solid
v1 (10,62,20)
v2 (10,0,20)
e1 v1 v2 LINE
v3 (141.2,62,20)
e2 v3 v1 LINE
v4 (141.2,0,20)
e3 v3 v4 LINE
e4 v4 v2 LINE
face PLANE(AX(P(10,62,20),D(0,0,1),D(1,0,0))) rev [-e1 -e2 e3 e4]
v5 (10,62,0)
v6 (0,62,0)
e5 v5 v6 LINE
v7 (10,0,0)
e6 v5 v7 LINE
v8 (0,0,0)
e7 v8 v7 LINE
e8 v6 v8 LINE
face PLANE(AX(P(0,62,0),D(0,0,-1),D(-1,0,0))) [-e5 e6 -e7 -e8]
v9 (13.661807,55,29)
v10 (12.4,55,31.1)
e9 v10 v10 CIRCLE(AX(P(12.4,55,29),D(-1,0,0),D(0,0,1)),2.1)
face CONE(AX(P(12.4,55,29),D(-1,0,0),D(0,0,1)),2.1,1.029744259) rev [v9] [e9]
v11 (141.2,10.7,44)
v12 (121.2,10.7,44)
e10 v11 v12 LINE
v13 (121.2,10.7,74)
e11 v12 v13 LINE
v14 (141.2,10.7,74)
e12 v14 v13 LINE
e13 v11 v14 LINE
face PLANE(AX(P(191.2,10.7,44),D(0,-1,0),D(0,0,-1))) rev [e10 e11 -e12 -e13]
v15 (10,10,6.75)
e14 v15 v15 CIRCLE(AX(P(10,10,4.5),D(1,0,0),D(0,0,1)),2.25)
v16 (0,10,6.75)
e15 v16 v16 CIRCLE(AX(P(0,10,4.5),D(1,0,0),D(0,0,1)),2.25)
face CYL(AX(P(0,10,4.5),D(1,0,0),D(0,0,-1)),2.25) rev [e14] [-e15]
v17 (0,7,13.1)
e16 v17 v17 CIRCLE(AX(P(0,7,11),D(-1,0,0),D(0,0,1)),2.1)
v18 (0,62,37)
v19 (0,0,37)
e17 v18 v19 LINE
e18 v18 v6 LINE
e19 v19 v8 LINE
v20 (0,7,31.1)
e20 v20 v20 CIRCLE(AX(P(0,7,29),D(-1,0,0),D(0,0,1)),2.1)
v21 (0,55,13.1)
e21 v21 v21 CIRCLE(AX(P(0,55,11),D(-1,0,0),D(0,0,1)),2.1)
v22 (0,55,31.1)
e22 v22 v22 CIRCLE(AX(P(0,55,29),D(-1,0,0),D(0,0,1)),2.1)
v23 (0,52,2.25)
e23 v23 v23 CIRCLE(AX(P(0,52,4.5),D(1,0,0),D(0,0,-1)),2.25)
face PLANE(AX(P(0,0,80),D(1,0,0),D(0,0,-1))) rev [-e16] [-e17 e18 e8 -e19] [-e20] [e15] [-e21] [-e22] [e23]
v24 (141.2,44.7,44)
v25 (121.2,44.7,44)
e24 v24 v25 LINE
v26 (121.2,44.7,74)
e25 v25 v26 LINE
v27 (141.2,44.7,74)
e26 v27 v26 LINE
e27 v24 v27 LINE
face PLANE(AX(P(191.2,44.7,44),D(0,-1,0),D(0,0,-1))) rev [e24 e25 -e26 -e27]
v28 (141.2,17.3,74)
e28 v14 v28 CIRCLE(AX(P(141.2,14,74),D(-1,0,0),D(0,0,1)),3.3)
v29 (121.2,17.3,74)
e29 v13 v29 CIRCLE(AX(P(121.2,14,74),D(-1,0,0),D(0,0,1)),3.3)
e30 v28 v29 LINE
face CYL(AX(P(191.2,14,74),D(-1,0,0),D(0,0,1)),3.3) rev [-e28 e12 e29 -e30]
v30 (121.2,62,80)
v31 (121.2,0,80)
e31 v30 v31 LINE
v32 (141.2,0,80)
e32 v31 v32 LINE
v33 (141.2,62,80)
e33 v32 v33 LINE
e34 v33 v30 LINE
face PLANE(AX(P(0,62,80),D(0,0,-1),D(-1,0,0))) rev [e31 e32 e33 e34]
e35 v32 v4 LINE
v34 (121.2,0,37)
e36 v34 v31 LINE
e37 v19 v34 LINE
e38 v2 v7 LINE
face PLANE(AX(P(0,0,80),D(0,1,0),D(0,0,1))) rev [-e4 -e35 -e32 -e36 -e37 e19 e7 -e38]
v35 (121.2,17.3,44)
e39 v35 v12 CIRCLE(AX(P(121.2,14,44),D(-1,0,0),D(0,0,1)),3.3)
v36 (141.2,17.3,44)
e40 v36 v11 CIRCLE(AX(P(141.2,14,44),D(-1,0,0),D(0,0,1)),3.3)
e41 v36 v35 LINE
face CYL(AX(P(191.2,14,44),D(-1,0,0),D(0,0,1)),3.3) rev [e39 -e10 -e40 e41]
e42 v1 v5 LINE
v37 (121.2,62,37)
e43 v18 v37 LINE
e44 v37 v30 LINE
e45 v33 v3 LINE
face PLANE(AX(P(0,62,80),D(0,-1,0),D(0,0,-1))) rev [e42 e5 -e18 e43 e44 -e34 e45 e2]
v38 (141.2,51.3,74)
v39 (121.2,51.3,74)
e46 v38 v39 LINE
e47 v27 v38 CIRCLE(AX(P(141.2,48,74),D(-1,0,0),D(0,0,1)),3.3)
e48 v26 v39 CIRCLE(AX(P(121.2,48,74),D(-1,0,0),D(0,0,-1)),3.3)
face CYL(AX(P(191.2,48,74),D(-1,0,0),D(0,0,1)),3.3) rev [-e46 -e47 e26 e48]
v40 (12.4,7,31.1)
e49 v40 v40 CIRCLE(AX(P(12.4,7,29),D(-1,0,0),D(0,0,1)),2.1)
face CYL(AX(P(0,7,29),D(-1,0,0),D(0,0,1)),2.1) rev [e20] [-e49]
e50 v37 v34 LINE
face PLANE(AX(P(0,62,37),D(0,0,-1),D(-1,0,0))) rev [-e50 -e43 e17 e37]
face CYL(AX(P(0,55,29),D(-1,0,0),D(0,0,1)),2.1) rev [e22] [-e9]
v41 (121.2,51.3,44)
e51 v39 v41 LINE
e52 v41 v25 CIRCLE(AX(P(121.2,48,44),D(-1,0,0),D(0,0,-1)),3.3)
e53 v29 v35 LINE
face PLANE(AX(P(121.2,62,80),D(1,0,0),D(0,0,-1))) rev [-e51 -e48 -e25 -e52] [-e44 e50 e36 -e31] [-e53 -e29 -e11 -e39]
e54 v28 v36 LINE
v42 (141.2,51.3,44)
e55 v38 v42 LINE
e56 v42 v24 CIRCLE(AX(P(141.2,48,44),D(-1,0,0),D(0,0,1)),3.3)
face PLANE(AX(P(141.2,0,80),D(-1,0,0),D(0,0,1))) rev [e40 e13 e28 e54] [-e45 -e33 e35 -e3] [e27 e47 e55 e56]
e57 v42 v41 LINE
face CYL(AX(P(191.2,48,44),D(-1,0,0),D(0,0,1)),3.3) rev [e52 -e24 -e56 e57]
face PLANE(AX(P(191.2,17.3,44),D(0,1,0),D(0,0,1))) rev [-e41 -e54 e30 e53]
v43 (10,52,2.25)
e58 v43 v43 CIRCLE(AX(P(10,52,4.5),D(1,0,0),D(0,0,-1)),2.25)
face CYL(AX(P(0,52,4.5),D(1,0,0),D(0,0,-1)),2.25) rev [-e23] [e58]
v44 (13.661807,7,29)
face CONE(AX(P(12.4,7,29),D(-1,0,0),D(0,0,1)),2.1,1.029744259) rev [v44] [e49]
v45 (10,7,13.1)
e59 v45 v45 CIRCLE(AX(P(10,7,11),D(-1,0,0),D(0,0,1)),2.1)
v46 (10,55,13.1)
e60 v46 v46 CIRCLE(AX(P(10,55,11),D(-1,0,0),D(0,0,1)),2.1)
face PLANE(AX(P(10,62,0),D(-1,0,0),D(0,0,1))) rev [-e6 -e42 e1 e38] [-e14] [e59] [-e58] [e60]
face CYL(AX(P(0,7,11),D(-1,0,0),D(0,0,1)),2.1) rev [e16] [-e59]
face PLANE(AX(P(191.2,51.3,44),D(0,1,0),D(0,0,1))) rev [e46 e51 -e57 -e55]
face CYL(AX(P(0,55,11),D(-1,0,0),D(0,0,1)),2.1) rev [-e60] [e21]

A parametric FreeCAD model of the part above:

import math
import FreeCAD as App
import Part
import Sketcher

V = App.Vector

doc = App.newDocument("Part")
body = doc.addObject("PartDesign::Body", "Body")

# Sketch on XY plane
sketch1 = doc.addObject("Sketcher::SketchObject", "Sketch")
body.addObject(sketch1)
sketch1.AttachmentSupport = (doc.XY_Plane, [""])
sketch1.MapMode = "FlatFace"
sketch1.addGeometry(Part.LineSegment(V(0, 62, 0), V(0, 0, 0)), False)
sketch1.addGeometry(Part.LineSegment(V(0, 0, 0), V(141.2, 0, 0)), False)
sketch1.addGeometry(Part.LineSegment(V(141.2, 0, 0), V(141.2, 62, 0)), False)
sketch1.addGeometry(Part.LineSegment(V(141.2, 62, 0), V(0, 62, 0)), False)
sketch1.addConstraint(Sketcher.Constraint("Coincident", 0, 2, 1, 1))
sketch1.addConstraint(Sketcher.Constraint("Coincident", 1, 2, 2, 1))
sketch1.addConstraint(Sketcher.Constraint("Coincident", 2, 2, 3, 1))
sketch1.addConstraint(Sketcher.Constraint("Coincident", 3, 2, 0, 1))
sketch1.addConstraint(Sketcher.Constraint("Vertical", 0))
sketch1.addConstraint(Sketcher.Constraint("Horizontal", 1))
sketch1.addConstraint(Sketcher.Constraint("Vertical", 2))
sketch1.addConstraint(Sketcher.Constraint("Horizontal", 3))
sketch1.addConstraint(Sketcher.Constraint("Coincident", 0, 2, -1, 1))
sketch1.addConstraint(Sketcher.Constraint("DistanceY", 0, 2, 0, 1, 62.0))
sketch1.addConstraint(Sketcher.Constraint("DistanceX", 1, 1, 1, 2, 141.2))
pad1 = doc.addObject("PartDesign::Pad", "Pad")
body.addObject(pad1)
pad1.Profile = sketch1
pad1.Length = 80

# Sketch on XZ plane
sketch2 = doc.addObject("Sketcher::SketchObject", "Sketch001")
body.addObject(sketch2)
sketch2.AttachmentSupport = (doc.XZ_Plane, [""])
sketch2.MapMode = "FlatFace"
sketch2.addGeometry(Part.LineSegment(V(10, 20, 0), V(10, 0, 0)), False)
sketch2.addGeometry(Part.LineSegment(V(10, 0, 0), V(141.2, 0, 0)), False)
sketch2.addGeometry(Part.LineSegment(V(141.2, 0, 0), V(141.2, 20, 0)), False)
sketch2.addGeometry(Part.LineSegment(V(141.2, 20, 0), V(10, 20, 0)), False)
sketch2.addGeometry(Part.LineSegment(V(0, 80, 0), V(0, 37, 0)), False)
sketch2.addGeometry(Part.LineSegment(V(0, 37, 0), V(121.2, 37, 0)), False)
sketch2.addGeometry(Part.LineSegment(V(121.2, 37, 0), V(121.2, 80, 0)), False)
sketch2.addGeometry(Part.LineSegment(V(121.2, 80, 0), V(0, 80, 0)), False)
sketch2.addConstraint(Sketcher.Constraint("Coincident", 0, 2, 1, 1))
sketch2.addConstraint(Sketcher.Constraint("Coincident", 1, 2, 2, 1))
sketch2.addConstraint(Sketcher.Constraint("Coincident", 2, 2, 3, 1))
sketch2.addConstraint(Sketcher.Constraint("Coincident", 3, 2, 0, 1))
sketch2.addConstraint(Sketcher.Constraint("Coincident", 4, 2, 5, 1))
sketch2.addConstraint(Sketcher.Constraint("Coincident", 5, 2, 6, 1))
sketch2.addConstraint(Sketcher.Constraint("Coincident", 6, 2, 7, 1))
sketch2.addConstraint(Sketcher.Constraint("Coincident", 7, 2, 4, 1))
sketch2.addConstraint(Sketcher.Constraint("Vertical", 0))
sketch2.addConstraint(Sketcher.Constraint("Horizontal", 1))
sketch2.addConstraint(Sketcher.Constraint("Vertical", 2))
sketch2.addConstraint(Sketcher.Constraint("Horizontal", 3))
sketch2.addConstraint(Sketcher.Constraint("Vertical", 4))
sketch2.addConstraint(Sketcher.Constraint("Horizontal", 5))
sketch2.addConstraint(Sketcher.Constraint("Vertical", 6))
sketch2.addConstraint(Sketcher.Constraint("Horizontal", 7))
sketch2.addConstraint(Sketcher.Constraint("PointOnObject", 0, 2, -1))
sketch2.addConstraint(Sketcher.Constraint("PointOnObject", 4, 2, -2))
sketch2.addConstraint(Sketcher.Constraint("DistanceY", 0, 2, 0, 1, 20.0))
sketch2.addConstraint(Sketcher.Constraint("DistanceY", 4, 2, 4, 1, 43.0))
sketch2.addConstraint(Sketcher.Constraint("DistanceX", 1, 1, 1, 2, 131.2))
sketch2.addConstraint(Sketcher.Constraint("DistanceX", 5, 1, 5, 2, 121.2))
sketch2.addConstraint(Sketcher.Constraint("DistanceX", -1, 1, 0, 2, 10.0))
sketch2.addConstraint(Sketcher.Constraint("DistanceY", -1, 1, 4, 2, 37.0))
pocket1 = doc.addObject("PartDesign::Pocket", "Pocket")
body.addObject(pocket1)
pocket1.Profile = sketch2
pocket1.Type = "ThroughAll"

# Sketch on YZ plane
sketch3 = doc.addObject("Sketcher::SketchObject", "Sketch002")
body.addObject(sketch3)
sketch3.AttachmentSupport = (doc.YZ_Plane, [""])
sketch3.MapMode = "FlatFace"
sketch3.AttachmentOffset = App.Placement(V(0, 0, 121.2), App.Rotation())
sketch3.addGeometry(Part.LineSegment(V(17.3, 74, 0), V(17.3, 44, 0)), False)
sketch3.addGeometry(Part.ArcOfCircle(Part.Circle(V(14, 44, 0), V(0, 0, 1), 3.3), math.radians(180), math.radians(360)), False)
sketch3.addGeometry(Part.LineSegment(V(10.7, 44, 0), V(10.7, 74, 0)), False)
sketch3.addGeometry(Part.ArcOfCircle(Part.Circle(V(14, 74, 0), V(0, 0, 1), 3.3), math.radians(0), math.radians(180)), False)
sketch3.addGeometry(Part.LineSegment(V(44.7, 44, 0), V(44.7, 74, 0)), False)
sketch3.addGeometry(Part.ArcOfCircle(Part.Circle(V(48, 74, 0), V(0, 0, 1), 3.3), math.radians(0), math.radians(180)), False)
sketch3.addGeometry(Part.LineSegment(V(51.3, 74, 0), V(51.3, 44, 0)), False)
sketch3.addGeometry(Part.ArcOfCircle(Part.Circle(V(48, 44, 0), V(0, 0, 1), 3.3), math.radians(180), math.radians(360)), False)
sketch3.addConstraint(Sketcher.Constraint("Tangent", 0, 2, 1, 2))
sketch3.addConstraint(Sketcher.Constraint("Tangent", 1, 1, 2, 1))
sketch3.addConstraint(Sketcher.Constraint("Tangent", 2, 2, 3, 2))
sketch3.addConstraint(Sketcher.Constraint("Tangent", 3, 1, 0, 1))
sketch3.addConstraint(Sketcher.Constraint("Tangent", 4, 2, 5, 2))
sketch3.addConstraint(Sketcher.Constraint("Tangent", 5, 1, 6, 1))
sketch3.addConstraint(Sketcher.Constraint("Tangent", 6, 2, 7, 2))
sketch3.addConstraint(Sketcher.Constraint("Tangent", 7, 1, 4, 1))
sketch3.addConstraint(Sketcher.Constraint("Vertical", 0))
sketch3.addConstraint(Sketcher.Constraint("Vertical", 2))
sketch3.addConstraint(Sketcher.Constraint("Vertical", 4))
sketch3.addConstraint(Sketcher.Constraint("Vertical", 6))
sketch3.addConstraint(Sketcher.Constraint("Equal", 3, 5))
sketch3.addConstraint(Sketcher.Constraint("Horizontal", 3, 3, 5, 3))
sketch3.addConstraint(Sketcher.Constraint("Horizontal", 1, 3, 7, 3))
sketch3.addConstraint(Sketcher.Constraint("Radius", 1, 3.3))
sketch3.addConstraint(Sketcher.Constraint("DistanceY", 0, 2, 0, 1, 30.0))
sketch3.addConstraint(Sketcher.Constraint("DistanceX", -1, 1, 1, 3, 14.0))
sketch3.addConstraint(Sketcher.Constraint("DistanceY", -1, 1, 1, 3, 44.0))
sketch3.addConstraint(Sketcher.Constraint("DistanceX", -1, 1, 5, 3, 48.0))
pocket2 = doc.addObject("PartDesign::Pocket", "Pocket001")
body.addObject(pocket2)
pocket2.Profile = sketch3
pocket2.Length = 70
pocket2.Reversed = True

# Sketch on YZ plane
sketch4 = doc.addObject("Sketcher::SketchObject", "Sketch003")
body.addObject(sketch4)
sketch4.AttachmentSupport = (doc.YZ_Plane, [""])
sketch4.MapMode = "FlatFace"
sketch4.AttachmentOffset = App.Placement(V(0, 0, 10), App.Rotation())
sketch4.addGeometry(Part.Circle(V(10, 4.5, 0), V(0, 0, 1), 2.25), False)
sketch4.addGeometry(Part.Circle(V(52, 4.5, 0), V(0, 0, 1), 2.25), False)
sketch4.addConstraint(Sketcher.Constraint("Equal", 0, 1))
sketch4.addConstraint(Sketcher.Constraint("Horizontal", 0, 3, 1, 3))
sketch4.addConstraint(Sketcher.Constraint("Diameter", 0, 4.5))
sketch4.addConstraint(Sketcher.Constraint("DistanceX", -1, 1, 0, 3, 10.0))
sketch4.addConstraint(Sketcher.Constraint("DistanceX", -1, 1, 1, 3, 52.0))
sketch4.addConstraint(Sketcher.Constraint("DistanceY", -1, 1, 0, 3, 4.5))
pocket3 = doc.addObject("PartDesign::Pocket", "Pocket002")
body.addObject(pocket3)
pocket3.Profile = sketch4
pocket3.Type = "ThroughAll"

# Sketch on YZ plane
sketch5 = doc.addObject("Sketcher::SketchObject", "Sketch004")
body.addObject(sketch5)
sketch5.AttachmentSupport = (doc.YZ_Plane, [""])
sketch5.MapMode = "FlatFace"
sketch5.addGeometry(Part.Circle(V(7, 29, 0), V(0, 0, 1), 2.1), False)
sketch5.addGeometry(Part.Circle(V(7, 11, 0), V(0, 0, 1), 2.1), False)
sketch5.addGeometry(Part.Circle(V(55, 11, 0), V(0, 0, 1), 2.1), False)
sketch5.addGeometry(Part.Circle(V(55, 29, 0), V(0, 0, 1), 2.1), False)
sketch5.addConstraint(Sketcher.Constraint("Equal", 0, 1))
sketch5.addConstraint(Sketcher.Constraint("Equal", 1, 2))
sketch5.addConstraint(Sketcher.Constraint("Equal", 2, 3))
sketch5.addConstraint(Sketcher.Constraint("Horizontal", 1, 3, 2, 3))
sketch5.addConstraint(Sketcher.Constraint("Horizontal", 0, 3, 3, 3))
sketch5.addConstraint(Sketcher.Constraint("Vertical", 0, 3, 1, 3))
sketch5.addConstraint(Sketcher.Constraint("Vertical", 2, 3, 3, 3))
sketch5.addConstraint(Sketcher.Constraint("Diameter", 0, 4.2))
sketch5.addConstraint(Sketcher.Constraint("DistanceX", -1, 1, 0, 3, 7.0))
sketch5.addConstraint(Sketcher.Constraint("DistanceY", -1, 1, 0, 3, 29.0))
sketch5.addConstraint(Sketcher.Constraint("DistanceY", -1, 1, 1, 3, 11.0))
sketch5.addConstraint(Sketcher.Constraint("DistanceX", -1, 1, 2, 3, 55.0))
doc.recompute()
hole = doc.addObject("PartDesign::Hole", "Hole")
body.addObject(hole)
hole.Profile = sketch5
hole.ThreadType = "None"
hole.Diameter = 4.2
hole.DepthType = "Dimension"
hole.Depth = 12.4
hole.DrillPoint = "Angled"
hole.DrillPointAngle = 118
hole.Reversed = True

doc.recompute()
